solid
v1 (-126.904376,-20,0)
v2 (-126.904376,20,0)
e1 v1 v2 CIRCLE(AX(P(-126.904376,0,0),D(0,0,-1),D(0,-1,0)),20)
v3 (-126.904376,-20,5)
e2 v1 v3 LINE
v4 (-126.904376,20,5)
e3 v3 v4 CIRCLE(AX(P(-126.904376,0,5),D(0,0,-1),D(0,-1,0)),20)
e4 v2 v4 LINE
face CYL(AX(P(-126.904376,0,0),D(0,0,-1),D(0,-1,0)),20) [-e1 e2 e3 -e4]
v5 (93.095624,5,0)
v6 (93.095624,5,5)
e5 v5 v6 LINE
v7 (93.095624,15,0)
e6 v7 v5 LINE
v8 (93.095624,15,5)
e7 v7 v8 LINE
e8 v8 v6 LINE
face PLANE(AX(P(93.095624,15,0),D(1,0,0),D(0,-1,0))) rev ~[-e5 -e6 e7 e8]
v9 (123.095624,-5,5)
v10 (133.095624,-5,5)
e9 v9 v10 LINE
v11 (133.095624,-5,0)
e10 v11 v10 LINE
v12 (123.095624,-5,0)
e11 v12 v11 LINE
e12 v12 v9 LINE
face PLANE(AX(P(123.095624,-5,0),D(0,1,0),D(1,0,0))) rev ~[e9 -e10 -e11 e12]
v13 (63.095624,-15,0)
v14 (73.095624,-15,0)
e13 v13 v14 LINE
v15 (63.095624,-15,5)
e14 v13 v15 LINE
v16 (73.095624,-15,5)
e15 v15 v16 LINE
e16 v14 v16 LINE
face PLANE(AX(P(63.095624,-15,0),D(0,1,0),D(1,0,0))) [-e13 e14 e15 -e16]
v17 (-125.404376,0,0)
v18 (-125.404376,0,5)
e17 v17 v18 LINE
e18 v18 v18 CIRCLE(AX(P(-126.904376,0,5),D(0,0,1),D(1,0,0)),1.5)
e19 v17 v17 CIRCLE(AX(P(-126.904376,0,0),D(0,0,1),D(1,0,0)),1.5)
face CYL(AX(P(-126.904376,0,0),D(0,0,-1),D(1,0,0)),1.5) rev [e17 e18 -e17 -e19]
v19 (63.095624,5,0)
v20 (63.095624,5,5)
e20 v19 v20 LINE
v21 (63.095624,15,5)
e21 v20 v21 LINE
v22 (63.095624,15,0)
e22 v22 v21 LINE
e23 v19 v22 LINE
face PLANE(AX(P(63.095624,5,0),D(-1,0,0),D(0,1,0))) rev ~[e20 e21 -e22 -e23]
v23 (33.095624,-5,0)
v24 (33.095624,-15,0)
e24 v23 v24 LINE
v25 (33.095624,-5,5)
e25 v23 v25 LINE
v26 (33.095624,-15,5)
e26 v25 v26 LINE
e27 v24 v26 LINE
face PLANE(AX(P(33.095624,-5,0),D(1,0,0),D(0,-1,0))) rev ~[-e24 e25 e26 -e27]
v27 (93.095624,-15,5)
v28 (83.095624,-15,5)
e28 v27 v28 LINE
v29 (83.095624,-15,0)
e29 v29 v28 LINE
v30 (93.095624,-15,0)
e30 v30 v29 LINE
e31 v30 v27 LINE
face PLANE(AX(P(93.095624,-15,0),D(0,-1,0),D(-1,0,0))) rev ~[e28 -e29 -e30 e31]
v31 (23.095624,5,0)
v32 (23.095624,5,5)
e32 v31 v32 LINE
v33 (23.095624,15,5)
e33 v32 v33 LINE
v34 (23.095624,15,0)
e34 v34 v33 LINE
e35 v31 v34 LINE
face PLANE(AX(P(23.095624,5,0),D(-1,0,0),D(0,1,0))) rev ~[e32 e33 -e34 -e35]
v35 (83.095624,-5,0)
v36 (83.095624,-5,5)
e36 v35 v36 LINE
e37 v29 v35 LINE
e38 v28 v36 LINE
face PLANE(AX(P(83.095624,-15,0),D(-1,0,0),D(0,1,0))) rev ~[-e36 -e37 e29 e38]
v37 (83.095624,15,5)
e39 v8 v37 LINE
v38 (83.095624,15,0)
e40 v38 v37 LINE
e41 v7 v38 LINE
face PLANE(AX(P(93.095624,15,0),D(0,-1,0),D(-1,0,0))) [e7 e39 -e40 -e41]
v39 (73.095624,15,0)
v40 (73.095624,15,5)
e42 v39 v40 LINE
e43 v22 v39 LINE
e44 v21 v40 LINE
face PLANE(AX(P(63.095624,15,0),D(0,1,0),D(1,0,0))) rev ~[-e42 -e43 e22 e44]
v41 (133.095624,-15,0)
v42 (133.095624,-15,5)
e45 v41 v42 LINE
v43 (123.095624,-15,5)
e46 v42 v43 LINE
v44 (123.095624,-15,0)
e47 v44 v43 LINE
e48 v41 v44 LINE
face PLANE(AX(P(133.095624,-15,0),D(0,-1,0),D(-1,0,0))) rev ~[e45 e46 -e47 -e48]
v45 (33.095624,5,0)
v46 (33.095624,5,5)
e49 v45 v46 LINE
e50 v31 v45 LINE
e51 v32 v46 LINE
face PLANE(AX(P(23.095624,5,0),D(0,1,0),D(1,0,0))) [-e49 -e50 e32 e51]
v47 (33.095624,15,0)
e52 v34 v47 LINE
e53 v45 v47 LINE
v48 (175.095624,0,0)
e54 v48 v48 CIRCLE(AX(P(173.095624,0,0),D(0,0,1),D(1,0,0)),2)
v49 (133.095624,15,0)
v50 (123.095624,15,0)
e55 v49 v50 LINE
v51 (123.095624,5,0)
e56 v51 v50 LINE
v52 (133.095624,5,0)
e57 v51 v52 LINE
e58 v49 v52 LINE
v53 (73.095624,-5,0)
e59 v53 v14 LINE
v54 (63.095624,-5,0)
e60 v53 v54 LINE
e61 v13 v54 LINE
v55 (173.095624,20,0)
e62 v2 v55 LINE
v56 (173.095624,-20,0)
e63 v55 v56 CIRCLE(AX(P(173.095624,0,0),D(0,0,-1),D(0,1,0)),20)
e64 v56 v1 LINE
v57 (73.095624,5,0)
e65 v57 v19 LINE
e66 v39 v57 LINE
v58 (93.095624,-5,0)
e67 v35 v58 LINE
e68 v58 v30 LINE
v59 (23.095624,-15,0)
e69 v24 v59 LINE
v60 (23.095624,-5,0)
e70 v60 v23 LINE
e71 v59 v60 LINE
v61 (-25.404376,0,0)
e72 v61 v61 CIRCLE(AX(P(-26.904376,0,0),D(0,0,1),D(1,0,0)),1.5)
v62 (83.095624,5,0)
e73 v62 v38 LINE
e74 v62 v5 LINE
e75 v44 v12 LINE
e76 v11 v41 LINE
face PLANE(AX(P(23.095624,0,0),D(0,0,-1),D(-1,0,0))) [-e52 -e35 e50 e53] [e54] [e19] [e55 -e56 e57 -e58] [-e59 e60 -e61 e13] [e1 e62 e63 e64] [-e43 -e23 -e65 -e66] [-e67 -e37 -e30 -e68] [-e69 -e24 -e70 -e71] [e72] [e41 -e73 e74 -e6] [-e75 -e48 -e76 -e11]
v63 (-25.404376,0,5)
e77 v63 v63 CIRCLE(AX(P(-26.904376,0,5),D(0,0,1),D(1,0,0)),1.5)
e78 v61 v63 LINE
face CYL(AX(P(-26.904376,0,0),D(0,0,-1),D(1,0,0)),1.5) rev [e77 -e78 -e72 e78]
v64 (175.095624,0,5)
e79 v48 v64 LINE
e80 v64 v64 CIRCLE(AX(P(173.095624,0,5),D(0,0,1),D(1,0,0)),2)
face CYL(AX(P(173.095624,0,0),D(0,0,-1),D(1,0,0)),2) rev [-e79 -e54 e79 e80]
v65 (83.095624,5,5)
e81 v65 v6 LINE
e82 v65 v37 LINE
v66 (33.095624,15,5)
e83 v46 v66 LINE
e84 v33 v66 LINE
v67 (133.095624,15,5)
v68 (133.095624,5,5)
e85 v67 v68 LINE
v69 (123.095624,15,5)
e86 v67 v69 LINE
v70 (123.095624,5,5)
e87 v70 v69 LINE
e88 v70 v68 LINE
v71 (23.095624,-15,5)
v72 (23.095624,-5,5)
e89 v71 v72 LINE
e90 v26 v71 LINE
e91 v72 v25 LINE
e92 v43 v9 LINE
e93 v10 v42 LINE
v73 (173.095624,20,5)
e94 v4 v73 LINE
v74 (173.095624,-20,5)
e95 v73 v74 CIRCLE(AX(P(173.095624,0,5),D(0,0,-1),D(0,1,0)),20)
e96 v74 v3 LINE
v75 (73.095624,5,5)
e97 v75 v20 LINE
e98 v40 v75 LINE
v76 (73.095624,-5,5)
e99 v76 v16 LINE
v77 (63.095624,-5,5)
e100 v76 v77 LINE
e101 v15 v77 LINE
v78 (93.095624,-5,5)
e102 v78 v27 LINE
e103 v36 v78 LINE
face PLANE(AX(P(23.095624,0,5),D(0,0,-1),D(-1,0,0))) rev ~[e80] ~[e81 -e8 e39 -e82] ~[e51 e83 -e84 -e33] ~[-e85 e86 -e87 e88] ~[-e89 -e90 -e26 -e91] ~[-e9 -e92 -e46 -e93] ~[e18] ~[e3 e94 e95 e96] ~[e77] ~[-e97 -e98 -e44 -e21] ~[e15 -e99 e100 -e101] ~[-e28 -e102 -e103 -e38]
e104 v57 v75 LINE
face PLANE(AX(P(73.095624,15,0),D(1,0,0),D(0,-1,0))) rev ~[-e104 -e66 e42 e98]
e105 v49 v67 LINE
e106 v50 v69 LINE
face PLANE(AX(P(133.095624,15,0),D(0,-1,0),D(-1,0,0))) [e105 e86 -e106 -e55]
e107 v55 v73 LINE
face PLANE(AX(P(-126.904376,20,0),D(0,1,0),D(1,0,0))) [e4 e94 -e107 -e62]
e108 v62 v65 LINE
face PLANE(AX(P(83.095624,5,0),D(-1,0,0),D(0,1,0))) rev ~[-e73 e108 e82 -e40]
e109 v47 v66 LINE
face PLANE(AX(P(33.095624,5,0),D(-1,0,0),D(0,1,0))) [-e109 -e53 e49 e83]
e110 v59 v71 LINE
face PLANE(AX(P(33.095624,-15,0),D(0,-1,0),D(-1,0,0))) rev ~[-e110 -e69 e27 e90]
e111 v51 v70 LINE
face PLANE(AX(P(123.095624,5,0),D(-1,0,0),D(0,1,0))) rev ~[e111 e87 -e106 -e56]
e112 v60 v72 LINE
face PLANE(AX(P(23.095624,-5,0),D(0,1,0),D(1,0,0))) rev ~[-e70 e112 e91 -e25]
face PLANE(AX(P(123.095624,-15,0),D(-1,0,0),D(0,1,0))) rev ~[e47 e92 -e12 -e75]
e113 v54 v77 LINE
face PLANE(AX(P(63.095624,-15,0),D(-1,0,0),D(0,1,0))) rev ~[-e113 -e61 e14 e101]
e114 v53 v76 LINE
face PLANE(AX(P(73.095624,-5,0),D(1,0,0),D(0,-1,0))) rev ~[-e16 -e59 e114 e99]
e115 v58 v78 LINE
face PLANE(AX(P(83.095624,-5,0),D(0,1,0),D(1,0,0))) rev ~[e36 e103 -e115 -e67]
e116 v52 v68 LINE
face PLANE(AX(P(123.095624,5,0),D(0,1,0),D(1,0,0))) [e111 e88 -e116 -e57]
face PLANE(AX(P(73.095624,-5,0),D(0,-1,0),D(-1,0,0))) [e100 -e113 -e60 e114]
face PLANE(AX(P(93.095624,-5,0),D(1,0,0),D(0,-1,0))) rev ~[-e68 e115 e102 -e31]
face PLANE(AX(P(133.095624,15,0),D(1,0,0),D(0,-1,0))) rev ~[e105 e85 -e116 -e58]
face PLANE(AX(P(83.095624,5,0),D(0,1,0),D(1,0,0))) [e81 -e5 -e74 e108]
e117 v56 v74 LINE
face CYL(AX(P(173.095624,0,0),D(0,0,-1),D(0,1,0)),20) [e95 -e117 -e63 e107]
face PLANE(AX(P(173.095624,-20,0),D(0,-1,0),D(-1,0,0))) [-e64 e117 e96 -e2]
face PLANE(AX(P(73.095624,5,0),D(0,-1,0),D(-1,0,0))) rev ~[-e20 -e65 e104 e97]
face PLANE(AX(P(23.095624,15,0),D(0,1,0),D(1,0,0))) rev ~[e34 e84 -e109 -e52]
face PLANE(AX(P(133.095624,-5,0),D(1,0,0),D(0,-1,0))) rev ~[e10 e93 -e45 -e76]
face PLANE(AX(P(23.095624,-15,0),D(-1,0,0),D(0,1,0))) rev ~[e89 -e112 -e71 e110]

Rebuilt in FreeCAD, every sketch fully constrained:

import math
import FreeCAD as App
import Part
import Sketcher
Q = App.Units.Quantity


def add_polygon(sketch, points):
    """Adds a closed chain of lines whose ends are joined by coincident constraints."""
    first, n = sketch.GeometryCount, len(points)
    for a, b in zip(points, points[1:] + points[:1]):
        sketch.addGeometry(Part.LineSegment(App.Vector(*a, 0), App.Vector(*b, 0)), False)
    for i in range(n):
        sketch.addConstraint(Sketcher.Constraint("Coincident", first + i, 2, first + (i + 1) % n, 1))

doc = App.newDocument("Part")
body = doc.addObject("PartDesign::Body", "Body")

# Sketch on XY plane
sketch1 = body.newObject("Sketcher::SketchObject", "Sketch")
sketch1.AttachmentSupport = (doc.getObject("XY_Plane"), [""])
sketch1.MapMode = "FlatFace"
sketch1.addGeometry(Part.LineSegment(App.Vector(173.1, 20, 0), App.Vector(-126.9, 20, 0)), False)  # 0
sketch1.addGeometry(Part.ArcOfCircle(Part.Circle(App.Vector(-126.9, 0, 0), App.Vector(0, 0, 1), 20), math.radians(90), math.radians(270)), False)  # 1
sketch1.addGeometry(Part.LineSegment(App.Vector(-126.9, -20, 0), App.Vector(173.1, -20, 0)), False)  # 2
sketch1.addGeometry(Part.ArcOfCircle(Part.Circle(App.Vector(173.1, 0, 0), App.Vector(0, 0, 1), 20), math.radians(-90), math.radians(90)), False)  # 3
add_polygon(sketch1, [(123.1, -5), (133.1, -5), (133.1, -15), (123.1, -15)])  # lines 4-7
add_polygon(sketch1, [(83.1, -5), (93.1, -5), (93.1, -15), (83.1, -15)])  # lines 8-11
add_polygon(sketch1, [(63.1, -15), (63.1, -5), (73.1, -5), (73.1, -15)])  # lines 12-15
add_polygon(sketch1, [(33.1, -15), (23.1, -15), (23.1, -5), (33.1, -5)])  # lines 16-19
sketch1.addGeometry(Part.Circle(App.Vector(173.1, 0, 0), App.Vector(0, 0, 1), 2), False)  # 20
add_polygon(sketch1, [(123.1, 15), (133.1, 15), (133.1, 5), (123.1, 5)])  # lines 21-24
add_polygon(sketch1, [(83.1, 15), (93.1, 15), (93.1, 5), (83.1, 5)])  # lines 25-28
add_polygon(sketch1, [(63.1, 15), (73.1, 15), (73.1, 5), (63.1, 5)])  # lines 29-32
add_polygon(sketch1, [(23.1, 5), (23.1, 15), (33.1, 15), (33.1, 5)])  # lines 33-36
sketch1.addGeometry(Part.Circle(App.Vector(-26.9, 0, 0), App.Vector(0, 0, 1), 1.5), False)  # 37
sketch1.addGeometry(Part.Circle(App.Vector(-126.9, 0, 0), App.Vector(0, 0, 1), 1.5), False)  # 38
sketch1.addConstraint(Sketcher.Constraint("Tangent", 0, 2, 1, 1))
sketch1.addConstraint(Sketcher.Constraint("Tangent", 1, 2, 2, 1))
sketch1.addConstraint(Sketcher.Constraint("Tangent", 2, 2, 3, 1))
sketch1.addConstraint(Sketcher.Constraint("Tangent", 3, 2, 0, 1))
sketch1.addConstraint(Sketcher.Constraint("Horizontal", 0))
sketch1.addConstraint(Sketcher.Constraint("Horizontal", 2))
sketch1.addConstraint(Sketcher.Constraint("Horizontal", 4))
sketch1.addConstraint(Sketcher.Constraint("Vertical", 5))
sketch1.addConstraint(Sketcher.Constraint("Horizontal", 6))
sketch1.addConstraint(Sketcher.Constraint("Vertical", 7))
sketch1.addConstraint(Sketcher.Constraint("Horizontal", 8))
sketch1.addConstraint(Sketcher.Constraint("Vertical", 9))
sketch1.addConstraint(Sketcher.Constraint("Horizontal", 10))
sketch1.addConstraint(Sketcher.Constraint("Vertical", 11))
sketch1.addConstraint(Sketcher.Constraint("Vertical", 12))
sketch1.addConstraint(Sketcher.Constraint("Horizontal", 13))
sketch1.addConstraint(Sketcher.Constraint("Vertical", 14))
sketch1.addConstraint(Sketcher.Constraint("Horizontal", 15))
sketch1.addConstraint(Sketcher.Constraint("Horizontal", 16))
sketch1.addConstraint(Sketcher.Constraint("Vertical", 17))
sketch1.addConstraint(Sketcher.Constraint("Horizontal", 18))
sketch1.addConstraint(Sketcher.Constraint("Vertical", 19))
sketch1.addConstraint(Sketcher.Constraint("Horizontal", 21))
sketch1.addConstraint(Sketcher.Constraint("Vertical", 22))
sketch1.addConstraint(Sketcher.Constraint("Horizontal", 23))
sketch1.addConstraint(Sketcher.Constraint("Vertical", 24))
sketch1.addConstraint(Sketcher.Constraint("Horizontal", 25))
sketch1.addConstraint(Sketcher.Constraint("Vertical", 26))
sketch1.addConstraint(Sketcher.Constraint("Horizontal", 27))
sketch1.addConstraint(Sketcher.Constraint("Vertical", 28))
sketch1.addConstraint(Sketcher.Constraint("Horizontal", 29))
sketch1.addConstraint(Sketcher.Constraint("Vertical", 30))
sketch1.addConstraint(Sketcher.Constraint("Horizontal", 31))
sketch1.addConstraint(Sketcher.Constraint("Vertical", 32))
sketch1.addConstraint(Sketcher.Constraint("Vertical", 33))
sketch1.addConstraint(Sketcher.Constraint("Horizontal", 34))
sketch1.addConstraint(Sketcher.Constraint("Vertical", 35))
sketch1.addConstraint(Sketcher.Constraint("Horizontal", 36))
sketch1.addConstraint(Sketcher.Constraint("Coincident", 20, 3, 3, 3))
sketch1.addConstraint(Sketcher.Constraint("Coincident", 38, 3, 1, 3))
sketch1.addConstraint(Sketcher.Constraint("Equal", 37, 38))
sketch1.addConstraint(Sketcher.Constraint("Symmetric", 5, 2, 21, 2, -1))
sketch1.addConstraint(Sketcher.Constraint("Symmetric", 7, 2, 23, 2, -1))
sketch1.addConstraint(Sketcher.Constraint("Symmetric", 9, 2, 25, 2, -1))
sketch1.addConstraint(Sketcher.Constraint("Symmetric", 11, 2, 27, 2, -1))
sketch1.addConstraint(Sketcher.Constraint("Symmetric", 14, 2, 29, 2, -1))
sketch1.addConstraint(Sketcher.Constraint("Symmetric", 12, 2, 31, 2, -1))
sketch1.addConstraint(Sketcher.Constraint("Symmetric", 16, 2, 33, 2, -1))
sketch1.addConstraint(Sketcher.Constraint("Symmetric", 18, 2, 35, 2, -1))
sketch1.addConstraint(Sketcher.Constraint("PointOnObject", 1, 3, -1))
sketch1.addConstraint(Sketcher.Constraint("PointOnObject", 37, 3, -1))
sketch1.addConstraint(Sketcher.Constraint("Horizontal", 7, 2, 8, 2))
sketch1.addConstraint(Sketcher.Constraint("Horizontal", 6, 2, 9, 2))
sketch1.addConstraint(Sketcher.Constraint("Horizontal", 11, 2, 12, 2))
sketch1.addConstraint(Sketcher.Constraint("Horizontal", 10, 2, 14, 2))
sketch1.addConstraint(Sketcher.Constraint("Horizontal", 15, 2, 16, 2))
sketch1.addConstraint(Sketcher.Constraint("Horizontal", 13, 2, 17, 2))
sketch1.addConstraint(Sketcher.Constraint("Equal", 6, 8))
sketch1.addConstraint(Sketcher.Constraint("Equal", 10, 13))
sketch1.addConstraint(Sketcher.Constraint("Equal", 15, 16))
sketch1.addConstraint(Sketcher.Constraint("Equal", 36, 5))
sketch1.addConstraint(Sketcher.Constraint("Diameter", 20, Q("4 mm")))
sketch1.addConstraint(Sketcher.Constraint("Diameter", 37, Q("3 mm")))
sketch1.addConstraint(Sketcher.Constraint("Radius", 1, Q("20 mm")))
sketch1.addConstraint(Sketcher.Constraint("DistanceX", 0, 2, 0, 1, Q("300 mm")))
sketch1.addConstraint(Sketcher.Constraint("DistanceX", 4, 1, 4, 2, Q("10 mm")))
sketch1.addConstraint(Sketcher.Constraint("DistanceY", 4, 2, -1, 1, Q("5 mm")))
sketch1.addConstraint(Sketcher.Constraint("DistanceX", 1, 3, 37, 3, Q("100 mm")))
sketch1.addConstraint(Sketcher.Constraint("DistanceX", 4, 2, 3, 3, Q("40 mm")))
sketch1.addConstraint(Sketcher.Constraint("DistanceX", 8, 2, 7, 2, Q("30 mm")))
sketch1.addConstraint(Sketcher.Constraint("DistanceX", 12, 2, 11, 2, Q("20 mm")))
sketch1.addConstraint(Sketcher.Constraint("DistanceX", 16, 2, 15, 2, Q("40 mm")))
sketch1.addConstraint(Sketcher.Constraint("DistanceX", 1, 3, -1, 1, Q("126.904376 mm")))
pad1 = body.newObject("PartDesign::Pad", "Pad")
pad1.Profile = sketch1
pad1.Length = 5

doc.recompute()
